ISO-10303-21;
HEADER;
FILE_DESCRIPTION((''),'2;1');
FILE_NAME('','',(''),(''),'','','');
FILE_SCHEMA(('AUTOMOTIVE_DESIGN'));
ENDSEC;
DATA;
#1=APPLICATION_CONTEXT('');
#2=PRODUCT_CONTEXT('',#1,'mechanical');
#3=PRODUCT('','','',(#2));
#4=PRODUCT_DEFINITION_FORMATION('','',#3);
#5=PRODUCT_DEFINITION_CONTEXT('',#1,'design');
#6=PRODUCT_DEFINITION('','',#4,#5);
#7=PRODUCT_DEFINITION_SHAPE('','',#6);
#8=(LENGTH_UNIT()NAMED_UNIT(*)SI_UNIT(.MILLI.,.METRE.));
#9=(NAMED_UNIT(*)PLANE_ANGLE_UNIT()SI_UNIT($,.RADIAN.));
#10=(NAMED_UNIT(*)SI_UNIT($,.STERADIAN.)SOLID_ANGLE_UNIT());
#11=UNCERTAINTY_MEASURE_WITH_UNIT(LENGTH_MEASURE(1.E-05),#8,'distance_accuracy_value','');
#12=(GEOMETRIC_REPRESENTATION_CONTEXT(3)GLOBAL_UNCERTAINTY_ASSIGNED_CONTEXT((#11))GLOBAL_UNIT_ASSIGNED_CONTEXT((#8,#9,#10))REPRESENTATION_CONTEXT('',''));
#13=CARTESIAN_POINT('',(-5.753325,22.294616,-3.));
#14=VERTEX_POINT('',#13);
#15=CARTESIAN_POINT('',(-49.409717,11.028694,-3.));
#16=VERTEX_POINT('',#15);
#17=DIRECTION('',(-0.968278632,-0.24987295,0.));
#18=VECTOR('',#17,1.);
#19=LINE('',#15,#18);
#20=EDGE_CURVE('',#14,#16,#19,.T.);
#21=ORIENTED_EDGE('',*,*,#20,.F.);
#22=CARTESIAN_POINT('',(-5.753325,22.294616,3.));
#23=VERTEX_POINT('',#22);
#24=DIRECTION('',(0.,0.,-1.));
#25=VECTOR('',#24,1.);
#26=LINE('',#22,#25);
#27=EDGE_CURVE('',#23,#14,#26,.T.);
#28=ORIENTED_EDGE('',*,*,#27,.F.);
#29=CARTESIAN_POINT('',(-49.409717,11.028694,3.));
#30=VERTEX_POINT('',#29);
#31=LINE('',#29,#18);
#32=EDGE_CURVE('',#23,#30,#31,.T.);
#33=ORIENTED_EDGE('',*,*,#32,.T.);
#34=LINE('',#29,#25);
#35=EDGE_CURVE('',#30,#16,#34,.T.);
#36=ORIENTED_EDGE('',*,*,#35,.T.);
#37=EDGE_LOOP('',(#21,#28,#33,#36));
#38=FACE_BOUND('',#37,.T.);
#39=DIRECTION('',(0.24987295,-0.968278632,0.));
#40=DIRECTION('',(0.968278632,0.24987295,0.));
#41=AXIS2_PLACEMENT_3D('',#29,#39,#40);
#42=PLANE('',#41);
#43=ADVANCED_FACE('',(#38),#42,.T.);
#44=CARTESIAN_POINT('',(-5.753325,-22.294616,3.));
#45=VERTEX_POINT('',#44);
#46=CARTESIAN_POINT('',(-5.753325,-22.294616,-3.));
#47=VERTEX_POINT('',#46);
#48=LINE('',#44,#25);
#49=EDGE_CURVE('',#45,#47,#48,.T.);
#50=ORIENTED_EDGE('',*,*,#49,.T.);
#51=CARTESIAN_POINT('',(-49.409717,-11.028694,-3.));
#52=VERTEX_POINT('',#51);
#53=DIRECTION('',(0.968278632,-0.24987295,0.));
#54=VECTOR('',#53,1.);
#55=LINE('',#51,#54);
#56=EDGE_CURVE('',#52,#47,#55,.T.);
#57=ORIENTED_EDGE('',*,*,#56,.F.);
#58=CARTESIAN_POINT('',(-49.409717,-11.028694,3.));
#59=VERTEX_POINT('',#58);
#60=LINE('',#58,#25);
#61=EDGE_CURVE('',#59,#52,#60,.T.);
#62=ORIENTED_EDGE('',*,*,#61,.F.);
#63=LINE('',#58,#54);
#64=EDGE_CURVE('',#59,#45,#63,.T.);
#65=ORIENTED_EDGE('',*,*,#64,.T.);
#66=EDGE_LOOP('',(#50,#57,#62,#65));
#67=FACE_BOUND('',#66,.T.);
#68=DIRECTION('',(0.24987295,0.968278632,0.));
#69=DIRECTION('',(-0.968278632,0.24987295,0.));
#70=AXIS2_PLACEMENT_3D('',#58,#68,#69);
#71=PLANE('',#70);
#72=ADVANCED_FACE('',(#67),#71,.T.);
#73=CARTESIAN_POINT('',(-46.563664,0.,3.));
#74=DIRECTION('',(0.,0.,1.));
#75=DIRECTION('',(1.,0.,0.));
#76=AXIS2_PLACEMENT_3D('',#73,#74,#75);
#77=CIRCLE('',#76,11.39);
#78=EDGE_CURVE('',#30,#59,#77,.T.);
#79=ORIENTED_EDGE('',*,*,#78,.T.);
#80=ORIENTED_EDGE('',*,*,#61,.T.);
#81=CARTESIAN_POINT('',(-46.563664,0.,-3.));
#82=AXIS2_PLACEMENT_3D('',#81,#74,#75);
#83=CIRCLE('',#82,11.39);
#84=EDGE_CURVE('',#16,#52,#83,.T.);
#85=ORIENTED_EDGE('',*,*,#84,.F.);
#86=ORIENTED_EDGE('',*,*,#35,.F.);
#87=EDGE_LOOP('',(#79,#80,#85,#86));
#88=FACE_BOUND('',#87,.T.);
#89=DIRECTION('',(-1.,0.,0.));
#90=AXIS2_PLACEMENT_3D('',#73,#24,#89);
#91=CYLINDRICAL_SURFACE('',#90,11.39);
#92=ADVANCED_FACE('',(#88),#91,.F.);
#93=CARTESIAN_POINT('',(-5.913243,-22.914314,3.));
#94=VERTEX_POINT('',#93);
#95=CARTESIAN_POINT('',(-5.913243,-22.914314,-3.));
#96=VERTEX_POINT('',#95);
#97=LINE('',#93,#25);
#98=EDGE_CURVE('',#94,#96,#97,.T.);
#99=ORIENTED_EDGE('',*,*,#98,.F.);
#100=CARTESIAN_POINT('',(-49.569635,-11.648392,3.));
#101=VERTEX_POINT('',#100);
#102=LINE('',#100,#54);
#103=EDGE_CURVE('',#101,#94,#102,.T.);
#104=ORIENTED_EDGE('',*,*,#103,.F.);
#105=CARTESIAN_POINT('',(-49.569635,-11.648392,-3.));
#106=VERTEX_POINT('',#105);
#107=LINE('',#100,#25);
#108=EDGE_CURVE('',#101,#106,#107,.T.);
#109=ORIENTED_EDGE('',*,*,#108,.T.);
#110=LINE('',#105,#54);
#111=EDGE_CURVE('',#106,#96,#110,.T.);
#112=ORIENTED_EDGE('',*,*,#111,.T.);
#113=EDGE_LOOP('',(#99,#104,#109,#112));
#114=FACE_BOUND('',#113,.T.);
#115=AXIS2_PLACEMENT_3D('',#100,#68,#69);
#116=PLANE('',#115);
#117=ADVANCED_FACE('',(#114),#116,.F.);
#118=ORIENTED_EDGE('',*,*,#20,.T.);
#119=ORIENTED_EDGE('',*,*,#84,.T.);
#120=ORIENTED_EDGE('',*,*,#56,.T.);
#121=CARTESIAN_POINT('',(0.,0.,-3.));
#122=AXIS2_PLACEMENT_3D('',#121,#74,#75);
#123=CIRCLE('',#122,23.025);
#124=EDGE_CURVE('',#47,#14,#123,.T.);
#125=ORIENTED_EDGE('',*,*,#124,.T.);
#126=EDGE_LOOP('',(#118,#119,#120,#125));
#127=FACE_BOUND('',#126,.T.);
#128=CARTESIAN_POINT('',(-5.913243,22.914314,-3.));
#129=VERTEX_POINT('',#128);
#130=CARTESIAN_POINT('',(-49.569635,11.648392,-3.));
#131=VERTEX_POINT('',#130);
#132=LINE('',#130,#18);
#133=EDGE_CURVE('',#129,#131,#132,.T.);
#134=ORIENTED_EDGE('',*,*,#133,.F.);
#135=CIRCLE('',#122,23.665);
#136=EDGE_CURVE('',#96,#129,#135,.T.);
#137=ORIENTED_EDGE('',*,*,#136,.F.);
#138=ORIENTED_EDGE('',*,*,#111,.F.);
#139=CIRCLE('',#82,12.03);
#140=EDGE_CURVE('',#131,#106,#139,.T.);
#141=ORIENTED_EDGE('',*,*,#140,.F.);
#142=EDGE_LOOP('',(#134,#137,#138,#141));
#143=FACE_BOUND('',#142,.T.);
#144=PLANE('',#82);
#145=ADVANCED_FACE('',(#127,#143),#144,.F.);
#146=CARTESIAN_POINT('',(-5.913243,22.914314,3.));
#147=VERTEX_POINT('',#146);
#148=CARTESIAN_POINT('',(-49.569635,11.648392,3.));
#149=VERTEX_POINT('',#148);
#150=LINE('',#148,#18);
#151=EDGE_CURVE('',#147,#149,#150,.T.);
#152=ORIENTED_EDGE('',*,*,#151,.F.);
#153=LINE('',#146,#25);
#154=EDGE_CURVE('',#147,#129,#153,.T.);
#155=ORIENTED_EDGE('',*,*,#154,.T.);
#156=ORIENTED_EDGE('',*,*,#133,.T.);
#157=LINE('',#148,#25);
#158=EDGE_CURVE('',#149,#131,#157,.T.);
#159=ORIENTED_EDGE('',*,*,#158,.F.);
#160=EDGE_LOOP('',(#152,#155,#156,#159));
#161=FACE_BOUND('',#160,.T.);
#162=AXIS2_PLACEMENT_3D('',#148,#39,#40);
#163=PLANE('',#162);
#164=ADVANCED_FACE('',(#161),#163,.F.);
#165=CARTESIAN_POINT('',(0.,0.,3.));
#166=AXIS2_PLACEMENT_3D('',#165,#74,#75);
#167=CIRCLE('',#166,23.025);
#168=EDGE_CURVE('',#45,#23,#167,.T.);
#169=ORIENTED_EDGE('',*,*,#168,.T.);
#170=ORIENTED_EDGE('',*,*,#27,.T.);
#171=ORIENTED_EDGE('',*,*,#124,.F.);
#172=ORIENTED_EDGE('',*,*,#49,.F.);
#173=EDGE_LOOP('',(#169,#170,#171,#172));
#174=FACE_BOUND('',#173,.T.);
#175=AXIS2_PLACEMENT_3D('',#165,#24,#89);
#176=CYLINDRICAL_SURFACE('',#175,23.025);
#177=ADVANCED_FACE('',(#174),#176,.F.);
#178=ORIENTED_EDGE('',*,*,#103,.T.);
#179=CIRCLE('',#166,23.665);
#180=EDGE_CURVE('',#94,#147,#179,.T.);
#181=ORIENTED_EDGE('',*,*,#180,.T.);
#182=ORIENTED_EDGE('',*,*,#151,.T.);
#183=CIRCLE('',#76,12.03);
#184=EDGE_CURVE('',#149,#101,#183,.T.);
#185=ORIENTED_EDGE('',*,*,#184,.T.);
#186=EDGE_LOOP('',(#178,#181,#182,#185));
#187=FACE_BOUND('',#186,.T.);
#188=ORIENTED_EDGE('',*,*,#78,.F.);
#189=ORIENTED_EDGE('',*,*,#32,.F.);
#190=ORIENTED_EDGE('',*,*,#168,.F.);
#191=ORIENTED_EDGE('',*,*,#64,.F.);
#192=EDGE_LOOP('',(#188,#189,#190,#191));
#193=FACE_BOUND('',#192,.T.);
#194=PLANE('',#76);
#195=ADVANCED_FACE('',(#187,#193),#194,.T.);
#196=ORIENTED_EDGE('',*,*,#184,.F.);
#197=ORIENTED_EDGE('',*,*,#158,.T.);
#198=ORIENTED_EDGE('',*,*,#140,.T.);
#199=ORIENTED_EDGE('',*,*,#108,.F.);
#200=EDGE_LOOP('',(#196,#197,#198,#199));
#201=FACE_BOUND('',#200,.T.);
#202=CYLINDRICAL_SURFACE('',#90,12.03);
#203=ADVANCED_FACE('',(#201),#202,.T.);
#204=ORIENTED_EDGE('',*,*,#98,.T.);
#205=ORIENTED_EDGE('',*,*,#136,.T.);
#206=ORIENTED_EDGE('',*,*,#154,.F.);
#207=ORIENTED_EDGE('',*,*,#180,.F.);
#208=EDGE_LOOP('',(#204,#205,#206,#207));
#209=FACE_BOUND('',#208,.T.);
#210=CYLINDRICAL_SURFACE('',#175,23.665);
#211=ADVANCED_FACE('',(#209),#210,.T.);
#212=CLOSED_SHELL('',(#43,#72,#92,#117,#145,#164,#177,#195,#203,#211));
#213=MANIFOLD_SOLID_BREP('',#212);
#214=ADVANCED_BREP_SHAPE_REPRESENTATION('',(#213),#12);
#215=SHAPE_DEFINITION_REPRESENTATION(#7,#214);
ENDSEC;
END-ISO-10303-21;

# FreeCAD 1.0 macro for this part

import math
import FreeCAD as App
import Part
import Sketcher
Q = App.Units.Quantity

doc = App.newDocument("Part")
body = doc.addObject("PartDesign::Body", "Body")

sketch1 = doc.addObject("Sketcher::SketchObject", "Sketch")
body.addObject(sketch1)
sketch1.AttachmentSupport = (doc.XY_Plane, [""])
sketch1.MapMode = "FlatFace"
sketch1.addGeometry(Part.LineSegment(App.Vector(-5.913243, 22.914314, 0), App.Vector(-49.569635, 11.648392, 0)), False)
sketch1.addGeometry(Part.ArcOfCircle(Part.Circle(App.Vector(-46.563664, 0, 0), App.Vector(0, 0, 1), 12.03), math.radians(104.469994), math.radians(255.530006)), False)
sketch1.addGeometry(Part.LineSegment(App.Vector(-49.569635, -11.648392, 0), App.Vector(-5.913243, -22.914314, 0)), False)
sketch1.addGeometry(Part.ArcOfCircle(Part.Circle(App.Vector(0, 0, 0), App.Vector(0, 0, 1), 23.665), math.radians(-104.469994), math.radians(104.469994)), False)
sketch1.addGeometry(Part.LineSegment(App.Vector(-49.409717, 11.028694, 0), App.Vector(-5.753325, 22.294616, 0)), False)
sketch1.addGeometry(Part.ArcOfCircle(Part.Circle(App.Vector(0, 0, 0), App.Vector(0, 0, 1), 23.025), math.radians(-104.469994), math.radians(104.469994)), False)
sketch1.addGeometry(Part.LineSegment(App.Vector(-5.753325, -22.294616, 0), App.Vector(-49.409717, -11.028694, 0)), False)
sketch1.addGeometry(Part.ArcOfCircle(Part.Circle(App.Vector(-46.563664, 0, 0), App.Vector(0, 0, 1), 11.39), math.radians(104.469994), math.radians(255.530006)), False)
sketch1.addConstraint(Sketcher.Constraint("Tangent", 0, 2, 1, 1))
sketch1.addConstraint(Sketcher.Constraint("Tangent", 1, 2, 2, 1))
sketch1.addConstraint(Sketcher.Constraint("Tangent", 2, 2, 3, 1))
sketch1.addConstraint(Sketcher.Constraint("Tangent", 3, 2, 0, 1))
sketch1.addConstraint(Sketcher.Constraint("Tangent", 4, 2, 5, 2))
sketch1.addConstraint(Sketcher.Constraint("Tangent", 5, 1, 6, 1))
sketch1.addConstraint(Sketcher.Constraint("Tangent", 6, 2, 7, 2))
sketch1.addConstraint(Sketcher.Constraint("Tangent", 7, 1, 4, 1))
sketch1.addConstraint(Sketcher.Constraint("Coincident", 3, 3, -1, 1))
sketch1.addConstraint(Sketcher.Constraint("Coincident", 5, 3, -1, 1))
sketch1.addConstraint(Sketcher.Constraint("Coincident", 7, 3, 1, 3))
sketch1.addConstraint(Sketcher.Constraint("PointOnObject", 1, 3, -1))
sketch1.addConstraint(Sketcher.Constraint("Parallel", 0, 4))
sketch1.addConstraint(Sketcher.Constraint("Radius", 1, Q("12.03 mm")))
sketch1.addConstraint(Sketcher.Constraint("Radius", 7, Q("11.39 mm")))
sketch1.addConstraint(Sketcher.Constraint("Radius", 3, Q("23.665 mm")))
sketch1.addConstraint(Sketcher.Constraint("Angle", 0, Q("-165.530006 deg")))
pad1 = doc.addObject("PartDesign::Pad", "Pad")
body.addObject(pad1)
pad1.Profile = sketch1
pad1.Length = 6
pad1.Midplane = True

doc.recompute()
